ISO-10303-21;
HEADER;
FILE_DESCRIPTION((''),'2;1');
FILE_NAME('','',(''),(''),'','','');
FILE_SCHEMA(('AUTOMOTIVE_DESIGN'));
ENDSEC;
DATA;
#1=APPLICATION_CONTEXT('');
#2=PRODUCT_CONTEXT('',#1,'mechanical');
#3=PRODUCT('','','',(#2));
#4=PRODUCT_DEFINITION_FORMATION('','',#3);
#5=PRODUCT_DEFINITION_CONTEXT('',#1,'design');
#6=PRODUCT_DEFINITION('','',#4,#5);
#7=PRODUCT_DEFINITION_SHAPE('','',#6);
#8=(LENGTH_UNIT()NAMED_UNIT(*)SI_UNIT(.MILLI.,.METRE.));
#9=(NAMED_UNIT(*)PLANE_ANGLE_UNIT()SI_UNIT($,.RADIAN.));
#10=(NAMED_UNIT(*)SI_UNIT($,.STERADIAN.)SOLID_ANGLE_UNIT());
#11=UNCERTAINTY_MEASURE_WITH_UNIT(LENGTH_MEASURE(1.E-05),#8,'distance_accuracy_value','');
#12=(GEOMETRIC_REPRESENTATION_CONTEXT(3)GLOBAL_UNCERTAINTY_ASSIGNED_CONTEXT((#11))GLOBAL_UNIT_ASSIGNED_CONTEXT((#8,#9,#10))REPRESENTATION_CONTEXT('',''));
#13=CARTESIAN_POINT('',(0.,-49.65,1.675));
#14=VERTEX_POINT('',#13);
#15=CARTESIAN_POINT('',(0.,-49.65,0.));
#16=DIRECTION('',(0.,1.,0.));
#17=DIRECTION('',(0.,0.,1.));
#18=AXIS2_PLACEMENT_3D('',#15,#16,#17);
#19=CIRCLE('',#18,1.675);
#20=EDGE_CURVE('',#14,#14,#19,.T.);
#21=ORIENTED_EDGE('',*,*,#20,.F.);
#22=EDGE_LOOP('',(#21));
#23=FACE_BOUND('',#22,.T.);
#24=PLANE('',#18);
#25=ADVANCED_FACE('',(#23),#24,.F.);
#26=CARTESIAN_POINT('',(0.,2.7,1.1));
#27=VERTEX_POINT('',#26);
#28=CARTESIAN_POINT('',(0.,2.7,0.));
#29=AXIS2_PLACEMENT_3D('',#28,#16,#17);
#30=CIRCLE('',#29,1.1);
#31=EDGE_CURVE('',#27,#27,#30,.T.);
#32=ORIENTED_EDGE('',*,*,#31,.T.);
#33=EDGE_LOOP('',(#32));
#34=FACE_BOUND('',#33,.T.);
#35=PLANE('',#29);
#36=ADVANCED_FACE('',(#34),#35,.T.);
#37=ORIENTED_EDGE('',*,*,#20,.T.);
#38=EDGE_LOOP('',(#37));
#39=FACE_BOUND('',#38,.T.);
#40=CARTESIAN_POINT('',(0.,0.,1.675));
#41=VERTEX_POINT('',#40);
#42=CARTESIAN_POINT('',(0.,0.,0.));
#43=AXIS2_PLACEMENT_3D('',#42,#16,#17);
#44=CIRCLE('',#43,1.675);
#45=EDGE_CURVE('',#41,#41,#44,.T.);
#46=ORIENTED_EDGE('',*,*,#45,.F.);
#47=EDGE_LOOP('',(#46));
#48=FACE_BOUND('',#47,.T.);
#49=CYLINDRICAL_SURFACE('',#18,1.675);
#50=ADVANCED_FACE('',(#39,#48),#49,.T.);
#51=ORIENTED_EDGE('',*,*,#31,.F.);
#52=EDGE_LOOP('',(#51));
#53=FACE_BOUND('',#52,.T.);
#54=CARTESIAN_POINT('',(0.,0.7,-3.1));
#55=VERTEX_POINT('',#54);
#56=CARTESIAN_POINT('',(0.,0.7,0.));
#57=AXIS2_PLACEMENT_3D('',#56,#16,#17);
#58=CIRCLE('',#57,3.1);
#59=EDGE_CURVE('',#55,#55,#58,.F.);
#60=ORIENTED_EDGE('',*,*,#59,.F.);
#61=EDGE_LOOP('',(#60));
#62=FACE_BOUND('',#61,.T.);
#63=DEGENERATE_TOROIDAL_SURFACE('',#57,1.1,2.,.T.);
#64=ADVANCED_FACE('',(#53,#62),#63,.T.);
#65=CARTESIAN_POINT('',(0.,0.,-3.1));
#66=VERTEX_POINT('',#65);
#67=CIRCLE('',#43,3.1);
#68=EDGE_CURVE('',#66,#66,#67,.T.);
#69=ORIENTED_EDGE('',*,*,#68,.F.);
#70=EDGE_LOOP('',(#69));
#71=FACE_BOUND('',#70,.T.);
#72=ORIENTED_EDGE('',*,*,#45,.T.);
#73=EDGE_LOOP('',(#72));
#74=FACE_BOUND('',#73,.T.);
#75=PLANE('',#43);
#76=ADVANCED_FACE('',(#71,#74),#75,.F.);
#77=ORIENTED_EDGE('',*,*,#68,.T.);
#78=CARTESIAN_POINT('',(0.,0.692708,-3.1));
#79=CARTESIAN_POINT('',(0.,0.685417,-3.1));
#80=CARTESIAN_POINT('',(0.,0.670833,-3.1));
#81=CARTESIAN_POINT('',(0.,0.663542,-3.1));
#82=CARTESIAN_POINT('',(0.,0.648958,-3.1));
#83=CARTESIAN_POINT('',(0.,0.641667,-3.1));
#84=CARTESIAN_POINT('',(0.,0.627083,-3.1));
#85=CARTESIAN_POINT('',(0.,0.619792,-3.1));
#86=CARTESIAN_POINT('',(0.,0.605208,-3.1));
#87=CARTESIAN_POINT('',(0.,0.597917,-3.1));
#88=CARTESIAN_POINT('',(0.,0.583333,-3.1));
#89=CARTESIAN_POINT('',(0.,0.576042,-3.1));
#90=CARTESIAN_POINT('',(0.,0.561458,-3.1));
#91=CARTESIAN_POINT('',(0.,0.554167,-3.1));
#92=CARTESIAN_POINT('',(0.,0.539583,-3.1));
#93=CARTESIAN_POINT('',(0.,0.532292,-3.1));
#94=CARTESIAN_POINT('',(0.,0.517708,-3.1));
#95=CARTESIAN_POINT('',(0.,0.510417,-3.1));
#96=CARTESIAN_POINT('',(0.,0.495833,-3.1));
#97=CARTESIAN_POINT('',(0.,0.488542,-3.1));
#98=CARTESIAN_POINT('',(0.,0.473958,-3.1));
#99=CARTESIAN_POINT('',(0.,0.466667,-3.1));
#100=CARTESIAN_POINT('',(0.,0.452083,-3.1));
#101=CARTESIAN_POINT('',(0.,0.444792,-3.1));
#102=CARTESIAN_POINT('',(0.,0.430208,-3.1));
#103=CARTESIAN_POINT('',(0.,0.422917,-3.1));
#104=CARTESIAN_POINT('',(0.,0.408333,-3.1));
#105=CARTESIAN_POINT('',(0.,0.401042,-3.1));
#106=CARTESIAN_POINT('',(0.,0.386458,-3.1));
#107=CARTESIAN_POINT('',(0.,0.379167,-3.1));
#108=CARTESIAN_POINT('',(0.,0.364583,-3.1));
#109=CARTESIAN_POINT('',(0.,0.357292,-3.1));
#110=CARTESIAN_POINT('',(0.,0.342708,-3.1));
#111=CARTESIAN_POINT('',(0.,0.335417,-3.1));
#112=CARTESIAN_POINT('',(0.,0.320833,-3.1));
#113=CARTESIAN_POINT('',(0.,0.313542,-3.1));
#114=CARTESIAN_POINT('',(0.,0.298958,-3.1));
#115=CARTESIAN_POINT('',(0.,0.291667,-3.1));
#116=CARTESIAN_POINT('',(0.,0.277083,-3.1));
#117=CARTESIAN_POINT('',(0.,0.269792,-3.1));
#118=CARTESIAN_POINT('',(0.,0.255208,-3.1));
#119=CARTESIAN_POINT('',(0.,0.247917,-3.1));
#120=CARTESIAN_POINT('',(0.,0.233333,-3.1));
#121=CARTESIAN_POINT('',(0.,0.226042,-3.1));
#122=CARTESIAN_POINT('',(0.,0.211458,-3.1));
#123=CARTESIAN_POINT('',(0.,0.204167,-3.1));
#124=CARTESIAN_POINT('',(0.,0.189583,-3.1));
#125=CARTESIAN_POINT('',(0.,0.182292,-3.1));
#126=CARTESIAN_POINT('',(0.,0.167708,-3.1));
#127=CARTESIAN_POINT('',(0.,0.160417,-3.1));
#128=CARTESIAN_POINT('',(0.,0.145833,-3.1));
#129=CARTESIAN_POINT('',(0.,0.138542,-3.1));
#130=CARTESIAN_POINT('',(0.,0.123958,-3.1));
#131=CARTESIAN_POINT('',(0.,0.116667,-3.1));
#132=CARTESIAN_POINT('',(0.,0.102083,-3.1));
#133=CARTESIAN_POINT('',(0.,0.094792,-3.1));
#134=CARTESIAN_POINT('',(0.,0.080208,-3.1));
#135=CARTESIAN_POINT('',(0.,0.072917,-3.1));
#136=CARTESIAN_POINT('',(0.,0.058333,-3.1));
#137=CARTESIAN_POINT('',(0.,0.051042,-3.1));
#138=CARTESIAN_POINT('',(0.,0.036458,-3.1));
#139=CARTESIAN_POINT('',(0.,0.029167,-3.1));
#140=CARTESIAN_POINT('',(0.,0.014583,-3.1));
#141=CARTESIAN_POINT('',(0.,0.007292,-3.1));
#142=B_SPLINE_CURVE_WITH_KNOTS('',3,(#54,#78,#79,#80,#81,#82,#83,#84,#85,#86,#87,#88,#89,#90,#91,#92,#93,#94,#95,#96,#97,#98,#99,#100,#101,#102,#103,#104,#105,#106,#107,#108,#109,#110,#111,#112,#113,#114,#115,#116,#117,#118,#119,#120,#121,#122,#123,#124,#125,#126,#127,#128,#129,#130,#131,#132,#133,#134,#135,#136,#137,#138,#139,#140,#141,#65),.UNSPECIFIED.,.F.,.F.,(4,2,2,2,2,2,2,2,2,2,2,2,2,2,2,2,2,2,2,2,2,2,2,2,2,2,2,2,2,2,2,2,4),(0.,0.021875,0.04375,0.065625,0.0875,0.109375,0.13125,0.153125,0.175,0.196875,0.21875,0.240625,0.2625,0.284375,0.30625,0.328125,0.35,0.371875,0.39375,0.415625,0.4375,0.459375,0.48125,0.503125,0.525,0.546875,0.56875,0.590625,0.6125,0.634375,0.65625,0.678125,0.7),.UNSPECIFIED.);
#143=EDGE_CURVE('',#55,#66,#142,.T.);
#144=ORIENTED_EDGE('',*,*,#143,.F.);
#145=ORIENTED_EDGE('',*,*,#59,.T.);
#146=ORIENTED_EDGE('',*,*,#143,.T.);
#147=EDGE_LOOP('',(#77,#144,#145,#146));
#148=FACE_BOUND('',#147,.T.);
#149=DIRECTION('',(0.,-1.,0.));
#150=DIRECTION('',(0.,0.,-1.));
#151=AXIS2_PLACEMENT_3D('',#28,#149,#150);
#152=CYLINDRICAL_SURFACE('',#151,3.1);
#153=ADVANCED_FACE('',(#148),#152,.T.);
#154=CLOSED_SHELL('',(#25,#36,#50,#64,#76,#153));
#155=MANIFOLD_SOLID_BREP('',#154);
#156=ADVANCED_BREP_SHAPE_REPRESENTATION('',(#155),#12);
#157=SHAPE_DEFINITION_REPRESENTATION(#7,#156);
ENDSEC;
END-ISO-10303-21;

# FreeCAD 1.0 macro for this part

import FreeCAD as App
import Part
import Sketcher

V = App.Vector
Q = App.Units.Quantity


def edges_at(feature, points):
    """Names of the edges that pass closest to the given points."""
    edges = feature.Shape.Edges
    near = lambda p: min(range(len(edges)), key=lambda i: edges[i].distToShape(Part.Vertex(*p))[0])
    return sorted({f"Edge{near(p) + 1}" for p in points})

doc = App.newDocument("Part")
body = doc.addObject("PartDesign::Body", "Body")

# Sketch on XZ plane
sketch1 = body.newObject("Sketcher::SketchObject", "Sketch")
sketch1.AttachmentSupport = (doc.getObject("XZ_Plane"), [""])
sketch1.MapMode = "FlatFace"
sketch1.addGeometry(Part.Circle(V(0, 0, 0), V(0, 0, 1), 1.675), False)
sketch1.addConstraint(Sketcher.Constraint("Coincident", 0, 3, -1, 1))
sketch1.addConstraint(Sketcher.Constraint("Diameter", 0, Q("3.35 mm")))
pad1 = body.newObject("PartDesign::Pad", "Pad")
pad1.Profile = sketch1
pad1.Length = 49.65

# Sketch on XZ plane
sketch2 = body.newObject("Sketcher::SketchObject", "Sketch001")
sketch2.AttachmentSupport = (doc.getObject("XZ_Plane"), [""])
sketch2.MapMode = "FlatFace"
sketch2.addGeometry(Part.Circle(V(0, 0, 0), V(0, 0, 1), 3.1), False)
sketch2.addConstraint(Sketcher.Constraint("Coincident", 0, 3, -1, 1))
sketch2.addConstraint(Sketcher.Constraint("Diameter", 0, Q("6.2 mm")))
pad2 = body.newObject("PartDesign::Pad", "Pad001")
pad2.Profile = sketch2
pad2.Length = 2.7
pad2.Reversed = True
doc.recompute()

fillet = body.newObject("PartDesign::Fillet", "Fillet")
fillet.Base = (pad2, edges_at(pad2, [(0, 2.7, 3.1)]))
fillet.Radius = 2

doc.recompute()
